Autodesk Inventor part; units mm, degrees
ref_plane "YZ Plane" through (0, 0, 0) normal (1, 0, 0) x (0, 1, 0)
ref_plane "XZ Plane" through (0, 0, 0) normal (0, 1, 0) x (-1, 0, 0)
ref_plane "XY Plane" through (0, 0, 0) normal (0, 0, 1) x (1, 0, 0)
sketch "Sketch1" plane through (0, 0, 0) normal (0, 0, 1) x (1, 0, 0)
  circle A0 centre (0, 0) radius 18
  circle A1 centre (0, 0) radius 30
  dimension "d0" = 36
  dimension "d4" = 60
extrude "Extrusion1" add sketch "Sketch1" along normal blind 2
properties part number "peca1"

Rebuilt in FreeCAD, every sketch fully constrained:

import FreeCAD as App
import Part
import Sketcher

V = App.Vector

doc = App.newDocument("Part")
body = doc.addObject("PartDesign::Body", "Body")

sketch1 = body.newObject("Sketcher::SketchObject", "Sketch")
sketch1.AttachmentSupport = (doc.getObject("XY_Plane"), [""])
sketch1.MapMode = "FlatFace"
sketch1.addGeometry([
    Part.Circle(V(0, 0, 0), V(0, 0, 1), 30),
    Part.Circle(V(0, 0, 0), V(0, 0, 1), 18),
], False)
sketch1.addConstraint([
    Sketcher.Constraint("Coincident", 0, 3, -1, 1),
    Sketcher.Constraint("Coincident", 1, 3, -1, 1),
    Sketcher.Constraint("Diameter", 0, 60.0),
    Sketcher.Constraint("Diameter", 1, 36.0),
])
pad1 = body.newObject("PartDesign::Pad", "Pad")
pad1.Profile = sketch1
pad1.Length = 2

doc.recompute()
